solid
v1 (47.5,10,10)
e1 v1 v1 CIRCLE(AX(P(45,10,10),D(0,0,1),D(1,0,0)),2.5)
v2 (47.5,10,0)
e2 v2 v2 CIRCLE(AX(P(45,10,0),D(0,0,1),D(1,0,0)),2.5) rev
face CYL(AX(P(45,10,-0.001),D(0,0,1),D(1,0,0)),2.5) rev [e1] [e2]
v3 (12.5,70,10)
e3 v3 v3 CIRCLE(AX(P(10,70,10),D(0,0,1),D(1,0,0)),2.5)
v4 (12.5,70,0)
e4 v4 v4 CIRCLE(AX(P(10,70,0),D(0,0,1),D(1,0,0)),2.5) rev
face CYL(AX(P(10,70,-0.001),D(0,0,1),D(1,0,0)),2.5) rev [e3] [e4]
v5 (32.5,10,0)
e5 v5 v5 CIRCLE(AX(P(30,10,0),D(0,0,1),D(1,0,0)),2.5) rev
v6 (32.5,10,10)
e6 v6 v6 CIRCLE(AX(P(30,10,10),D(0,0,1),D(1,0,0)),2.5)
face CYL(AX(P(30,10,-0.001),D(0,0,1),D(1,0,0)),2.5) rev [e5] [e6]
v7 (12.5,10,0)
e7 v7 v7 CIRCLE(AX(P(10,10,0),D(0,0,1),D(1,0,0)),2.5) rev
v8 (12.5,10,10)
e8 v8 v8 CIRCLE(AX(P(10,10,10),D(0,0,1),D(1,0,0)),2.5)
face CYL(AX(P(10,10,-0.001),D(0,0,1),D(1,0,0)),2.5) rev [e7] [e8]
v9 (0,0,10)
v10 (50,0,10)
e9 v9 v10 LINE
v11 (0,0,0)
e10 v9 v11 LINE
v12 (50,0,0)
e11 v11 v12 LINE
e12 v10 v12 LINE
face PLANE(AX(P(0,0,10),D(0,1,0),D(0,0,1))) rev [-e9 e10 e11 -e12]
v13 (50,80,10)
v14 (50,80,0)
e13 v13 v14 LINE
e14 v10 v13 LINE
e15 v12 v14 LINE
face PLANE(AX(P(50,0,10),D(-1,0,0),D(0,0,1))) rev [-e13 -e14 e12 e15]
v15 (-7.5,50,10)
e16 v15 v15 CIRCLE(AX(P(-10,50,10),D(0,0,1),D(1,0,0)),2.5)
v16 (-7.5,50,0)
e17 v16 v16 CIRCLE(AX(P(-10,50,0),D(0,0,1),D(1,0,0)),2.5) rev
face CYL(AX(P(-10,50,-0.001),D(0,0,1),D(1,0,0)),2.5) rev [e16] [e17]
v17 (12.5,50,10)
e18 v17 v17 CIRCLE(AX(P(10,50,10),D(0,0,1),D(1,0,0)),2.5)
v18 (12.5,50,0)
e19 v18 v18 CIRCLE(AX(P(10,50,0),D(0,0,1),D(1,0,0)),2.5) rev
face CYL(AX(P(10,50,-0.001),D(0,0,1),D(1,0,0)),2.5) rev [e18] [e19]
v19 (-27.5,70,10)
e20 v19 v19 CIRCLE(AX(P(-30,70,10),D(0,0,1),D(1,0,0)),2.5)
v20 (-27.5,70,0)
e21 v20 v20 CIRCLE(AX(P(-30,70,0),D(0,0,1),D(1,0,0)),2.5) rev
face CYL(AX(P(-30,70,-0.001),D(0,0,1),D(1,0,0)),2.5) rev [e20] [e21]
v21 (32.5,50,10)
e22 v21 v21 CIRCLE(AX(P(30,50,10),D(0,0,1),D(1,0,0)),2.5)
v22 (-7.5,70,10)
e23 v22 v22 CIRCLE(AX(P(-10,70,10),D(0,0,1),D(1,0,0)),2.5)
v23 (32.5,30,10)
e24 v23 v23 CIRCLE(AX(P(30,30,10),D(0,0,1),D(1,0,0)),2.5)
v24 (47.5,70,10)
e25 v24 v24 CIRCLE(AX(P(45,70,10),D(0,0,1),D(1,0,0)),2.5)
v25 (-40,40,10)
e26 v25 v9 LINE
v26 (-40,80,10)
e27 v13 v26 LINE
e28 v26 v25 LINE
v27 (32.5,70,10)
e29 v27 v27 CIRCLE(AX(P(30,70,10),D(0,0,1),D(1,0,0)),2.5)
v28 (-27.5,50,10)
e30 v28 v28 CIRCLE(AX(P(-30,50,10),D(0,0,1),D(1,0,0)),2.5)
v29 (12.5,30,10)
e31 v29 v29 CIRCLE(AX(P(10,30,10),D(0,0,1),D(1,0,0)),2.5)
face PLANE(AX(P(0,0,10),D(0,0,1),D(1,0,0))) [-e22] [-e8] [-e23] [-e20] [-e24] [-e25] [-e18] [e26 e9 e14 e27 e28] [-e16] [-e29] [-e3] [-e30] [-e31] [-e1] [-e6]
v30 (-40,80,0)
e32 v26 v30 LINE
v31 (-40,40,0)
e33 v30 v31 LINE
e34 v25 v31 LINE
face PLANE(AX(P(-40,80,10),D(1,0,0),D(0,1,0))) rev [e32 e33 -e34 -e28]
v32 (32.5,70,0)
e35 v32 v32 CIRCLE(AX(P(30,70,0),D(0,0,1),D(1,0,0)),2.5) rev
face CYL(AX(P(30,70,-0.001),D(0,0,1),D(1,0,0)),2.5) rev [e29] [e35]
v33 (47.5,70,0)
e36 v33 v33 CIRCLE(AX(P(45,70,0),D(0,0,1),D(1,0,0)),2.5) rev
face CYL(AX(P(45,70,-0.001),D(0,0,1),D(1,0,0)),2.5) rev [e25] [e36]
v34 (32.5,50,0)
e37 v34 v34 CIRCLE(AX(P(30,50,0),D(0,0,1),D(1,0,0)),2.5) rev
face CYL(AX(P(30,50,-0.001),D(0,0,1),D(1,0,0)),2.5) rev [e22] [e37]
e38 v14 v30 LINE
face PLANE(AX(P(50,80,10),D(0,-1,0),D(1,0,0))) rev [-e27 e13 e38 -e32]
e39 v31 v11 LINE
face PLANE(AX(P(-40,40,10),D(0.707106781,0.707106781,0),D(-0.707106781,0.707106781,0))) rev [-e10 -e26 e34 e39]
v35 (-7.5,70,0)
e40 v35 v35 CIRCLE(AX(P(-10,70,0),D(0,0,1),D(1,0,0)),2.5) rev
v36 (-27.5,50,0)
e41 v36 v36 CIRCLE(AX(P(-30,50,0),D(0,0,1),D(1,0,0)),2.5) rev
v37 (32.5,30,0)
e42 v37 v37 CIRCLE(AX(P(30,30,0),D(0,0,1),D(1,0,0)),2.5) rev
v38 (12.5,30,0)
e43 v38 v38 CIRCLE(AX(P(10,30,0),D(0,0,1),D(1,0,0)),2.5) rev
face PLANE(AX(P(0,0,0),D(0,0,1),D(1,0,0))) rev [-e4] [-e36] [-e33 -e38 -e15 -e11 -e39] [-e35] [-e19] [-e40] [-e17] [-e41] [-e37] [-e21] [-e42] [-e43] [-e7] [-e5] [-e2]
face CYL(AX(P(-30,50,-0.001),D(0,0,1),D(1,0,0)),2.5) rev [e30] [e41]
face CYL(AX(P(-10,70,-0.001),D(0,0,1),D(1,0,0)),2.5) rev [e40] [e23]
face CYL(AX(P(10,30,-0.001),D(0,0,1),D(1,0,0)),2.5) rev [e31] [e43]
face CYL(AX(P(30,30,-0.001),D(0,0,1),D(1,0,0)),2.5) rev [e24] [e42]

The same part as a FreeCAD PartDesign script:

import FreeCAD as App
import Part
import Sketcher

V = App.Vector
Q = App.Units.Quantity

doc = App.newDocument("Part")
body = doc.addObject("PartDesign::Body", "Body")

sketch1 = body.newObject("Sketcher::SketchObject", "Sketch")
sketch1.AttachmentSupport = (doc.getObject("XY_Plane"), [""])
sketch1.MapMode = "FlatFace"
sketch1.addGeometry(Part.LineSegment(V(0, 0, 0), V(50, 0, 0)), False)
sketch1.addGeometry(Part.LineSegment(V(50, 0, 0), V(50, 80, 0)), False)
sketch1.addGeometry(Part.LineSegment(V(50, 80, 0), V(-40, 80, 0)), False)
sketch1.addGeometry(Part.LineSegment(V(-40, 80, 0), V(-40, 40, 0)), False)
sketch1.addGeometry(Part.LineSegment(V(-40, 40, 0), V(0, 0, 0)), False)
sketch1.addConstraint(Sketcher.Constraint("Coincident", 0, 2, 1, 1))
sketch1.addConstraint(Sketcher.Constraint("Coincident", 1, 2, 2, 1))
sketch1.addConstraint(Sketcher.Constraint("Coincident", 2, 2, 3, 1))
sketch1.addConstraint(Sketcher.Constraint("Coincident", 3, 2, 4, 1))
sketch1.addConstraint(Sketcher.Constraint("Coincident", 4, 2, 0, 1))
sketch1.addConstraint(Sketcher.Constraint("Horizontal", 0))
sketch1.addConstraint(Sketcher.Constraint("Vertical", 1))
sketch1.addConstraint(Sketcher.Constraint("Horizontal", 2))
sketch1.addConstraint(Sketcher.Constraint("Vertical", 3))
sketch1.addConstraint(Sketcher.Constraint("Coincident", 4, 2, -1, 1))
sketch1.addConstraint(Sketcher.Constraint("DistanceX", 0, 1, 0, 2, Q("50 mm")))
sketch1.addConstraint(Sketcher.Constraint("DistanceX", 2, 2, 2, 1, Q("90 mm")))
sketch1.addConstraint(Sketcher.Constraint("DistanceY", 1, 1, 1, 2, Q("80 mm")))
sketch1.addConstraint(Sketcher.Constraint("DistanceY", 3, 2, 3, 1, Q("40 mm")))
pad1 = body.newObject("PartDesign::Pad", "Pad")
pad1.Profile = sketch1
pad1.Length = 10

sketch2 = body.newObject("Sketcher::SketchObject", "Sketch001")
sketch2.AttachmentSupport = (doc.getObject("XY_Plane"), [""])
sketch2.MapMode = "FlatFace"
sketch2.AttachmentOffset = App.Placement(V(0, 0, 10), App.Rotation())
sketch2.addGeometry(Part.Circle(V(10, 10, 0), V(0, 0, 1), 2.5), False)
sketch2.addConstraint(Sketcher.Constraint("Diameter", 0, Q("5 mm")))
sketch2.addConstraint(Sketcher.Constraint("DistanceX", -1, 1, 0, 3, Q("10 mm")))
sketch2.addConstraint(Sketcher.Constraint("DistanceY", -1, 1, 0, 3, Q("10 mm")))
pocket1 = body.newObject("PartDesign::Pocket", "Pocket")
pocket1.Profile = sketch2
pocket1.Type = "UpToFirst"

sketch3 = body.newObject("Sketcher::SketchObject", "Sketch002")
sketch3.AttachmentSupport = (doc.getObject("XY_Plane"), [""])
sketch3.MapMode = "FlatFace"
sketch3.AttachmentOffset = App.Placement(V(0, 0, 10), App.Rotation())
sketch3.addGeometry(Part.Circle(V(30, 10, 0), V(0, 0, 1), 2.5), False)
sketch3.addConstraint(Sketcher.Constraint("Diameter", 0, Q("5 mm")))
sketch3.addConstraint(Sketcher.Constraint("DistanceX", -1, 1, 0, 3, Q("30 mm")))
sketch3.addConstraint(Sketcher.Constraint("DistanceY", -1, 1, 0, 3, Q("10 mm")))
pocket2 = body.newObject("PartDesign::Pocket", "Pocket001")
pocket2.Profile = sketch3
pocket2.Type = "UpToFirst"

sketch4 = body.newObject("Sketcher::SketchObject", "Sketch003")
sketch4.AttachmentSupport = (doc.getObject("XY_Plane"), [""])
sketch4.MapMode = "FlatFace"
sketch4.AttachmentOffset = App.Placement(V(0, 0, 10), App.Rotation())
sketch4.addGeometry(Part.Circle(V(10, 30, 0), V(0, 0, 1), 2.5), False)
sketch4.addConstraint(Sketcher.Constraint("Diameter", 0, Q("5 mm")))
sketch4.addConstraint(Sketcher.Constraint("DistanceX", -1, 1, 0, 3, Q("10 mm")))
sketch4.addConstraint(Sketcher.Constraint("DistanceY", -1, 1, 0, 3, Q("30 mm")))
pocket3 = body.newObject("PartDesign::Pocket", "Pocket002")
pocket3.Profile = sketch4
pocket3.Type = "UpToFirst"

sketch5 = body.newObject("Sketcher::SketchObject", "Sketch004")
sketch5.AttachmentSupport = (doc.getObject("XY_Plane"), [""])
sketch5.MapMode = "FlatFace"
sketch5.AttachmentOffset = App.Placement(V(0, 0, 10), App.Rotation())
sketch5.addGeometry(Part.Circle(V(30, 30, 0), V(0, 0, 1), 2.5), False)
sketch5.addConstraint(Sketcher.Constraint("Diameter", 0, Q("5 mm")))
sketch5.addConstraint(Sketcher.Constraint("DistanceX", -1, 1, 0, 3, Q("30 mm")))
sketch5.addConstraint(Sketcher.Constraint("DistanceY", -1, 1, 0, 3, Q("30 mm")))
pocket4 = body.newObject("PartDesign::Pocket", "Pocket003")
pocket4.Profile = sketch5
pocket4.Type = "UpToFirst"

sketch6 = body.newObject("Sketcher::SketchObject", "Sketch005")
sketch6.AttachmentSupport = (doc.getObject("XY_Plane"), [""])
sketch6.MapMode = "FlatFace"
sketch6.AttachmentOffset = App.Placement(V(0, 0, 10), App.Rotation())
sketch6.addGeometry(Part.Circle(V(10, 50, 0), V(0, 0, 1), 2.5), False)
sketch6.addConstraint(Sketcher.Constraint("Diameter", 0, Q("5 mm")))
sketch6.addConstraint(Sketcher.Constraint("DistanceX", -1, 1, 0, 3, Q("10 mm")))
sketch6.addConstraint(Sketcher.Constraint("DistanceY", -1, 1, 0, 3, Q("50 mm")))
pocket5 = body.newObject("PartDesign::Pocket", "Pocket004")
pocket5.Profile = sketch6
pocket5.Type = "UpToFirst"

sketch7 = body.newObject("Sketcher::SketchObject", "Sketch006")
sketch7.AttachmentSupport = (doc.getObject("XY_Plane"), [""])
sketch7.MapMode = "FlatFace"
sketch7.AttachmentOffset = App.Placement(V(0, 0, 10), App.Rotation())
sketch7.addGeometry(Part.Circle(V(30, 50, 0), V(0, 0, 1), 2.5), False)
sketch7.addConstraint(Sketcher.Constraint("Diameter", 0, Q("5 mm")))
sketch7.addConstraint(Sketcher.Constraint("DistanceX", -1, 1, 0, 3, Q("30 mm")))
sketch7.addConstraint(Sketcher.Constraint("DistanceY", -1, 1, 0, 3, Q("50 mm")))
pocket6 = body.newObject("PartDesign::Pocket", "Pocket005")
pocket6.Profile = sketch7
pocket6.Type = "UpToFirst"

sketch8 = body.newObject("Sketcher::SketchObject", "Sketch007")
sketch8.AttachmentSupport = (doc.getObject("XY_Plane"), [""])
sketch8.MapMode = "FlatFace"
sketch8.AttachmentOffset = App.Placement(V(0, 0, 10), App.Rotation())
sketch8.addGeometry(Part.Circle(V(10, 70, 0), V(0, 0, 1), 2.5), False)
sketch8.addConstraint(Sketcher.Constraint("Diameter", 0, Q("5 mm")))
sketch8.addConstraint(Sketcher.Constraint("DistanceX", -1, 1, 0, 3, Q("10 mm")))
sketch8.addConstraint(Sketcher.Constraint("DistanceY", -1, 1, 0, 3, Q("70 mm")))
pocket7 = body.newObject("PartDesign::Pocket", "Pocket006")
pocket7.Profile = sketch8
pocket7.Type = "UpToFirst"

sketch9 = body.newObject("Sketcher::SketchObject", "Sketch008")
sketch9.AttachmentSupport = (doc.getObject("XY_Plane"), [""])
sketch9.MapMode = "FlatFace"
sketch9.AttachmentOffset = App.Placement(V(0, 0, 10), App.Rotation())
sketch9.addGeometry(Part.Circle(V(30, 70, 0), V(0, 0, 1), 2.5), False)
sketch9.addConstraint(Sketcher.Constraint("Diameter", 0, Q("5 mm")))
sketch9.addConstraint(Sketcher.Constraint("DistanceX", -1, 1, 0, 3, Q("30 mm")))
sketch9.addConstraint(Sketcher.Constraint("DistanceY", -1, 1, 0, 3, Q("70 mm")))
pocket8 = body.newObject("PartDesign::Pocket", "Pocket007")
pocket8.Profile = sketch9
pocket8.Type = "UpToFirst"

sketch10 = body.newObject("Sketcher::SketchObject", "Sketch009")
sketch10.AttachmentSupport = (doc.getObject("XY_Plane"), [""])
sketch10.MapMode = "FlatFace"
sketch10.AttachmentOffset = App.Placement(V(0, 0, 10), App.Rotation())
sketch10.addGeometry(Part.Circle(V(-30, 50, 0), V(0, 0, 1), 2.5), False)
sketch10.addConstraint(Sketcher.Constraint("Diameter", 0, Q("5 mm")))
sketch10.addConstraint(Sketcher.Constraint("DistanceX", 0, 3, -1, 1, Q("30 mm")))
sketch10.addConstraint(Sketcher.Constraint("DistanceY", -1, 1, 0, 3, Q("50 mm")))
pocket9 = body.newObject("PartDesign::Pocket", "Pocket008")
pocket9.Profile = sketch10
pocket9.Type = "UpToFirst"

sketch11 = body.newObject("Sketcher::SketchObject", "Sketch010")
sketch11.AttachmentSupport = (doc.getObject("XY_Plane"), [""])
sketch11.MapMode = "FlatFace"
sketch11.AttachmentOffset = App.Placement(V(0, 0, 10), App.Rotation())
sketch11.addGeometry(Part.Circle(V(-10, 50, 0), V(0, 0, 1), 2.5), False)
sketch11.addConstraint(Sketcher.Constraint("Diameter", 0, Q("5 mm")))
sketch11.addConstraint(Sketcher.Constraint("DistanceX", 0, 3, -1, 1, Q("10 mm")))
sketch11.addConstraint(Sketcher.Constraint("DistanceY", -1, 1, 0, 3, Q("50 mm")))
pocket10 = body.newObject("PartDesign::Pocket", "Pocket009")
pocket10.Profile = sketch11
pocket10.Type = "UpToFirst"

sketch12 = body.newObject("Sketcher::SketchObject", "Sketch011")
sketch12.AttachmentSupport = (doc.getObject("XY_Plane"), [""])
sketch12.MapMode = "FlatFace"
sketch12.AttachmentOffset = App.Placement(V(0, 0, 10), App.Rotation())
sketch12.addGeometry(Part.Circle(V(-30, 70, 0), V(0, 0, 1), 2.5), False)
sketch12.addConstraint(Sketcher.Constraint("Diameter", 0, Q("5 mm")))
sketch12.addConstraint(Sketcher.Constraint("DistanceX", 0, 3, -1, 1, Q("30 mm")))
sketch12.addConstraint(Sketcher.Constraint("DistanceY", -1, 1, 0, 3, Q("70 mm")))
pocket11 = body.newObject("PartDesign::Pocket", "Pocket010")
pocket11.Profile = sketch12
pocket11.Type = "UpToFirst"

sketch13 = body.newObject("Sketcher::SketchObject", "Sketch012")
sketch13.AttachmentSupport = (doc.getObject("XY_Plane"), [""])
sketch13.MapMode = "FlatFace"
sketch13.AttachmentOffset = App.Placement(V(0, 0, 10), App.Rotation())
sketch13.addGeometry(Part.Circle(V(-10, 70, 0), V(0, 0, 1), 2.5), False)
sketch13.addConstraint(Sketcher.Constraint("Diameter", 0, Q("5 mm")))
sketch13.addConstraint(Sketcher.Constraint("DistanceX", 0, 3, -1, 1, Q("10 mm")))
sketch13.addConstraint(Sketcher.Constraint("DistanceY", -1, 1, 0, 3, Q("70 mm")))
pocket12 = body.newObject("PartDesign::Pocket", "Pocket011")
pocket12.Profile = sketch13
pocket12.Type = "UpToFirst"

sketch14 = body.newObject("Sketcher::SketchObject", "Sketch013")
sketch14.AttachmentSupport = (doc.getObject("XY_Plane"), [""])
sketch14.MapMode = "FlatFace"
sketch14.AttachmentOffset = App.Placement(V(0, 0, 10), App.Rotation())
sketch14.addGeometry(Part.Circle(V(45, 10, 0), V(0, 0, 1), 2.5), False)
sketch14.addConstraint(Sketcher.Constraint("Diameter", 0, Q("5 mm")))
sketch14.addConstraint(Sketcher.Constraint("DistanceX", -1, 1, 0, 3, Q("45 mm")))
sketch14.addConstraint(Sketcher.Constraint("DistanceY", -1, 1, 0, 3, Q("10 mm")))
pocket13 = body.newObject("PartDesign::Pocket", "Pocket012")
pocket13.Profile = sketch14
pocket13.Type = "UpToFirst"

sketch15 = body.newObject("Sketcher::SketchObject", "Sketch014")
sketch15.AttachmentSupport = (doc.getObject("XY_Plane"), [""])
sketch15.MapMode = "FlatFace"
sketch15.AttachmentOffset = App.Placement(V(0, 0, 10), App.Rotation())
sketch15.addGeometry(Part.Circle(V(45, 70, 0), V(0, 0, 1), 2.5), False)
sketch15.addConstraint(Sketcher.Constraint("Diameter", 0, Q("5 mm")))
sketch15.addConstraint(Sketcher.Constraint("DistanceX", -1, 1, 0, 3, Q("45 mm")))
sketch15.addConstraint(Sketcher.Constraint("DistanceY", -1, 1, 0, 3, Q("70 mm")))
pocket14 = body.newObject("PartDesign::Pocket", "Pocket013")
pocket14.Profile = sketch15
pocket14.Type = "UpToFirst"

doc.recompute()
